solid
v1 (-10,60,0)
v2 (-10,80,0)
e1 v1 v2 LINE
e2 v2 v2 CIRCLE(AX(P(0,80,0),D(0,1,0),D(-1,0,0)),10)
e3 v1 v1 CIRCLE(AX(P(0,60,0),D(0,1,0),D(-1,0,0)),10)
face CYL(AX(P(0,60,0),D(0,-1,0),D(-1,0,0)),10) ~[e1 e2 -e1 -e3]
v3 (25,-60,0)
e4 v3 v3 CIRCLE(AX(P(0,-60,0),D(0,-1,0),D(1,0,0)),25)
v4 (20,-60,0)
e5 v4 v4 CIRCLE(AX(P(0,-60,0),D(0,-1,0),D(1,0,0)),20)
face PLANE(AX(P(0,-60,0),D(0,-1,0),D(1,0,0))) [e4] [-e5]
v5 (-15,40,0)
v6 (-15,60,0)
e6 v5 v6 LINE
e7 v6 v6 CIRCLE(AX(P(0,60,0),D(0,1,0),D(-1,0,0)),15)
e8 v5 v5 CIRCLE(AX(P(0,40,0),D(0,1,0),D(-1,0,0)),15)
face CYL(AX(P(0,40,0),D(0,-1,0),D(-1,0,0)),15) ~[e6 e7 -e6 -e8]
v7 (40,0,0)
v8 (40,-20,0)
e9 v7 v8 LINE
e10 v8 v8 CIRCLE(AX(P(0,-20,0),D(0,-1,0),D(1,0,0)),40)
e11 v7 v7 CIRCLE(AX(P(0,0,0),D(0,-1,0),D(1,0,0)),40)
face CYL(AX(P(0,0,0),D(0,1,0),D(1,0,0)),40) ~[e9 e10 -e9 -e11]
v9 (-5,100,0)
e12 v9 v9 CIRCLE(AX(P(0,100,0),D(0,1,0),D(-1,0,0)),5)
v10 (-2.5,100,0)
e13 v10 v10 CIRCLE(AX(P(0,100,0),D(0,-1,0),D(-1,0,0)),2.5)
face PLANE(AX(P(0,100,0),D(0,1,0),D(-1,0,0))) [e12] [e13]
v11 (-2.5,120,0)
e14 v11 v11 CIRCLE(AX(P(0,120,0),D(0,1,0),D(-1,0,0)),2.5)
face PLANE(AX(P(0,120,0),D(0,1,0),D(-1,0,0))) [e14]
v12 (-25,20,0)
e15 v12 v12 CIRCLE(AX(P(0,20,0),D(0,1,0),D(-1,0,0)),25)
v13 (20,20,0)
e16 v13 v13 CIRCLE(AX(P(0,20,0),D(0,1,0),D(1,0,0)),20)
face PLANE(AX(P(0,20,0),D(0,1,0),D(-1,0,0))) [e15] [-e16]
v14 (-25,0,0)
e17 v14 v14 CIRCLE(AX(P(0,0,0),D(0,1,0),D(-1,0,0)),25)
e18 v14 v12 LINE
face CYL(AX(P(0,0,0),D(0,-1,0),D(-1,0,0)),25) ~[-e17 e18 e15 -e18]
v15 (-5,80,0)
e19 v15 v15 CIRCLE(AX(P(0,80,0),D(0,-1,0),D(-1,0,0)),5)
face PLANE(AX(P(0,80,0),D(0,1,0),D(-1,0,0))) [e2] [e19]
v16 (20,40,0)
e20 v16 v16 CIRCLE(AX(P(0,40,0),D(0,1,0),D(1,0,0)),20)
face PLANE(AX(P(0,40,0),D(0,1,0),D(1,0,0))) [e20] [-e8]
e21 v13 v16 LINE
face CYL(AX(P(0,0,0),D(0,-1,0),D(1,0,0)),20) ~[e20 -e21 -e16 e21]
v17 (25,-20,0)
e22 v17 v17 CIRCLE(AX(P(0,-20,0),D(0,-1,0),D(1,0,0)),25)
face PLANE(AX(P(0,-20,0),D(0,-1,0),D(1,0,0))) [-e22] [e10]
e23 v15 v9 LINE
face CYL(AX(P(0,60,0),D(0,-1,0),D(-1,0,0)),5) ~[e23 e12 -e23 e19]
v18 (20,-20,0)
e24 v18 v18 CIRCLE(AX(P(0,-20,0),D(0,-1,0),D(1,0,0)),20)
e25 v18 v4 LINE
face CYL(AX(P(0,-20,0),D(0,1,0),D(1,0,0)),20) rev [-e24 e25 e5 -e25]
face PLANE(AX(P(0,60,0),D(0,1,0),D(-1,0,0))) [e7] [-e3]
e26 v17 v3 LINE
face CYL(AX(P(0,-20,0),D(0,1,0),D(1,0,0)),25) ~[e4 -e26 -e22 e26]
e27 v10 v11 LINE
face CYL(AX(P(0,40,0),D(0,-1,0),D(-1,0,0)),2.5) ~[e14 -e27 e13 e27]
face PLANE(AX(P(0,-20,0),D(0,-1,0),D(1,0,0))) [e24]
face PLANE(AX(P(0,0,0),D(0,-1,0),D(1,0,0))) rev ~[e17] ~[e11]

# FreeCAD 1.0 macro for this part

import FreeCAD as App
import Part
import Sketcher
Q = App.Units.Quantity

doc = App.newDocument("Part")
body = doc.addObject("PartDesign::Body", "Body")

sketch1 = body.newObject("Sketcher::SketchObject", "Sketch")
sketch1.AttachmentSupport = (doc.getObject("XZ_Plane"), [""])
sketch1.MapMode = "FlatFace"
sketch1.addGeometry(Part.Circle(App.Vector(0, 0, 0), App.Vector(0, 0, 1), 40), False)
sketch1.addConstraint(Sketcher.Constraint("Coincident", 0, 3, -1, 1))
sketch1.addConstraint(Sketcher.Constraint("Diameter", 0, Q("80 mm")))
pad1 = body.newObject("PartDesign::Pad", "Pad")
pad1.Profile = sketch1
pad1.Length = 20

sketch2 = body.newObject("Sketcher::SketchObject", "Sketch001")
sketch2.AttachmentSupport = (doc.getObject("XZ_Plane"), [""])
sketch2.MapMode = "FlatFace"
sketch2.AttachmentOffset = App.Placement(App.Vector(0, 0, 20), App.Rotation())
sketch2.addGeometry(Part.Circle(App.Vector(0, 0, 0), App.Vector(0, 0, 1), 25), False)
sketch2.addGeometry(Part.Circle(App.Vector(0, 0, 0), App.Vector(0, 0, 1), 20), False)
sketch2.addConstraint(Sketcher.Constraint("Coincident", 0, 3, -1, 1))
sketch2.addConstraint(Sketcher.Constraint("Coincident", 1, 3, -1, 1))
sketch2.addConstraint(Sketcher.Constraint("Diameter", 0, Q("50 mm")))
sketch2.addConstraint(Sketcher.Constraint("Diameter", 1, Q("40 mm")))
pad2 = body.newObject("PartDesign::Pad", "Pad001")
pad2.Profile = sketch2
pad2.Length = 40

sketch3 = body.newObject("Sketcher::SketchObject", "Sketch002")
sketch3.AttachmentSupport = (doc.getObject("XZ_Plane"), [""])
sketch3.MapMode = "FlatFace"
sketch3.addGeometry(Part.Circle(App.Vector(0, 0, 0), App.Vector(0, 0, 1), 25), False)
sketch3.addGeometry(Part.Circle(App.Vector(0, 0, 0), App.Vector(0, 0, 1), 20), False)
sketch3.addConstraint(Sketcher.Constraint("Coincident", 0, 3, -1, 1))
sketch3.addConstraint(Sketcher.Constraint("Coincident", 1, 3, -1, 1))
sketch3.addConstraint(Sketcher.Constraint("Diameter", 0, Q("50 mm")))
sketch3.addConstraint(Sketcher.Constraint("Diameter", 1, Q("40 mm")))
pad3 = body.newObject("PartDesign::Pad", "Pad002")
pad3.Profile = sketch3
pad3.Length = 20
pad3.Reversed = True

sketch4 = body.newObject("Sketcher::SketchObject", "Sketch003")
sketch4.AttachmentSupport = (doc.getObject("XZ_Plane"), [""])
sketch4.MapMode = "FlatFace"
sketch4.addGeometry(Part.Circle(App.Vector(0, 0, 0), App.Vector(0, 0, 1), 20), False)
sketch4.addConstraint(Sketcher.Constraint("Coincident", 0, 3, -1, 1))
sketch4.addConstraint(Sketcher.Constraint("Diameter", 0, Q("40 mm")))
pad4 = body.newObject("PartDesign::Pad", "Pad003")
pad4.Profile = sketch4
pad4.Length = 40
pad4.Reversed = True

sketch5 = body.newObject("Sketcher::SketchObject", "Sketch004")
sketch5.AttachmentSupport = (doc.getObject("XZ_Plane"), [""])
sketch5.MapMode = "FlatFace"
sketch5.AttachmentOffset = App.Placement(App.Vector(0, 0, -40), App.Rotation())
sketch5.addGeometry(Part.Circle(App.Vector(0, 0, 0), App.Vector(0, 0, 1), 2.5), False)
sketch5.addConstraint(Sketcher.Constraint("Coincident", 0, 3, -1, 1))
sketch5.addConstraint(Sketcher.Constraint("Diameter", 0, Q("5 mm")))
pad5 = body.newObject("PartDesign::Pad", "Pad004")
pad5.Profile = sketch5
pad5.Length = 80
pad5.Reversed = True

sketch6 = body.newObject("Sketcher::SketchObject", "Sketch005")
sketch6.AttachmentSupport = (doc.getObject("XZ_Plane"), [""])
sketch6.MapMode = "FlatFace"
sketch6.AttachmentOffset = App.Placement(App.Vector(0, 0, -40), App.Rotation())
sketch6.addGeometry(Part.Circle(App.Vector(0, 0, 0), App.Vector(0, 0, 1), 15), False)
sketch6.addConstraint(Sketcher.Constraint("Coincident", 0, 3, -1, 1))
sketch6.addConstraint(Sketcher.Constraint("Diameter", 0, Q("30 mm")))
pad6 = body.newObject("PartDesign::Pad", "Pad005")
pad6.Profile = sketch6
pad6.Length = 20
pad6.Reversed = True

sketch7 = body.newObject("Sketcher::SketchObject", "Sketch006")
sketch7.AttachmentSupport = (doc.getObject("XZ_Plane"), [""])
sketch7.MapMode = "FlatFace"
sketch7.AttachmentOffset = App.Placement(App.Vector(0, 0, -60), App.Rotation())
sketch7.addGeometry(Part.Circle(App.Vector(0, 0, 0), App.Vector(0, 0, 1), 5), False)
sketch7.addConstraint(Sketcher.Constraint("Coincident", 0, 3, -1, 1))
sketch7.addConstraint(Sketcher.Constraint("Diameter", 0, Q("10 mm")))
pad7 = body.newObject("PartDesign::Pad", "Pad006")
pad7.Profile = sketch7
pad7.Length = 40
pad7.Reversed = True

sketch8 = body.newObject("Sketcher::SketchObject", "Sketch007")
sketch8.AttachmentSupport = (doc.getObject("XZ_Plane"), [""])
sketch8.MapMode = "FlatFace"
sketch8.AttachmentOffset = App.Placement(App.Vector(0, 0, -60), App.Rotation())
sketch8.addGeometry(Part.Circle(App.Vector(0, 0, 0), App.Vector(0, 0, 1), 10), False)
sketch8.addConstraint(Sketcher.Constraint("Coincident", 0, 3, -1, 1))
sketch8.addConstraint(Sketcher.Constraint("Diameter", 0, Q("20 mm")))
pad8 = body.newObject("PartDesign::Pad", "Pad007")
pad8.Profile = sketch8
pad8.Length = 20
pad8.Reversed = True

doc.recompute()
